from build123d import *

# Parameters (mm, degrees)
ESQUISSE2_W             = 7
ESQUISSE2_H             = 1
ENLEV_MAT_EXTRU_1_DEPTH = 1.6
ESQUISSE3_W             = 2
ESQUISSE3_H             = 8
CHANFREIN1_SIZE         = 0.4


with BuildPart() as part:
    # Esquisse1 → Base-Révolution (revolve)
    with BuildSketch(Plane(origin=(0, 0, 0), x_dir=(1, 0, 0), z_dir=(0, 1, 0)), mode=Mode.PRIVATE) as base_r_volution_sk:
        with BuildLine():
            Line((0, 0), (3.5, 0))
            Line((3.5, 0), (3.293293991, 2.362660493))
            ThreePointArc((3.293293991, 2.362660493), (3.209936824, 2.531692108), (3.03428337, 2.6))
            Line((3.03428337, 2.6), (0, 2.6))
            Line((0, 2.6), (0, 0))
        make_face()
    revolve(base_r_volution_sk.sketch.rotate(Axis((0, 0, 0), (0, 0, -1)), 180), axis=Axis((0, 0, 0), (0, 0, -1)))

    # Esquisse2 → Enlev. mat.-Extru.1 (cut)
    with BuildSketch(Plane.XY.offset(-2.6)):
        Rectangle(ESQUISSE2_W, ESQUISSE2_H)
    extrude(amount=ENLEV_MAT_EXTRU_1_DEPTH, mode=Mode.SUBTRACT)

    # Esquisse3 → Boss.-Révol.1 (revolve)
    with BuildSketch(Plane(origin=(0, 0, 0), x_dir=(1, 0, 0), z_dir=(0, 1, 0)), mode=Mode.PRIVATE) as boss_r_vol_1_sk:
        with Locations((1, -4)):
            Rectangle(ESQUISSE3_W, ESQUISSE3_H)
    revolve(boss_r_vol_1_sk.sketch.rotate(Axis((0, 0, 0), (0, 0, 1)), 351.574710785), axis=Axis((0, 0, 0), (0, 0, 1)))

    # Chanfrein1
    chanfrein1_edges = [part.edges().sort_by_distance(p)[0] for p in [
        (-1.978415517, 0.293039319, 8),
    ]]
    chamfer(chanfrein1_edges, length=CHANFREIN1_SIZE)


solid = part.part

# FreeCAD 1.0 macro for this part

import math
import FreeCAD as App
import Part
import Sketcher

V = App.Vector
Q = App.Units.Quantity


def edges_at(feature, points):
    """Names of the edges that pass closest to the given points."""
    edges = feature.Shape.Edges
    near = lambda p: min(range(len(edges)), key=lambda i: edges[i].distToShape(Part.Vertex(*p))[0])
    return sorted({f"Edge{near(p) + 1}" for p in points})


def add_polygon(sketch, points):
    """Adds a closed chain of lines whose ends are joined by coincident constraints."""
    first, n = sketch.GeometryCount, len(points)
    for a, b in zip(points, points[1:] + points[:1]):
        sketch.addGeometry(Part.LineSegment(App.Vector(*a, 0), App.Vector(*b, 0)), False)
    for i in range(n):
        sketch.addConstraint(Sketcher.Constraint("Coincident", first + i, 2, first + (i + 1) % n, 1))

doc = App.newDocument("Part")
body = doc.addObject("PartDesign::Body", "Body")

# Sketch on XZ plane
sketch1 = body.newObject("Sketcher::SketchObject", "Sketch")
sketch1.AttachmentSupport = (doc.getObject("XZ_Plane"), [""])
sketch1.MapMode = "FlatFace"
sketch1.addGeometry([
    Part.LineSegment(V(0, 0, 0), V(3.5, 0, 0)),  # 0
    Part.LineSegment(V(3.5, 0, 0), V(3.29, -2.36, 0)),  # 1
    Part.ArcOfCircle(Part.Circle(V(3.03, -2.34, 0), V(0, 0, 1), 0.26), math.radians(-90), math.radians(-5)),  # 2
    Part.LineSegment(V(3.03, -2.6, 0), V(0, -2.6, 0)),  # 3
    Part.LineSegment(V(0, -2.6, 0), V(0, 0, 0)),  # 4
], False)
sketch1.addConstraint([
    Sketcher.Constraint("Coincident", 0, 2, 1, 1),
    Sketcher.Constraint("Tangent", 1, 2, 2, 2),
    Sketcher.Constraint("Tangent", 2, 1, 3, 1),
    Sketcher.Constraint("Coincident", 3, 2, 4, 1),
    Sketcher.Constraint("Coincident", 4, 2, 0, 1),
    Sketcher.Constraint("Horizontal", 0),
    Sketcher.Constraint("Horizontal", 3),
    Sketcher.Constraint("Vertical", 4),
    Sketcher.Constraint("Coincident", 4, 2, -1, 1),
    Sketcher.Constraint("Angle", 1, Q("-95 deg")),
    Sketcher.Constraint("Radius", 2, Q("0.26 mm")),
    Sketcher.Constraint("DistanceX", 0, 1, 0, 2, Q("3.5 mm")),
    Sketcher.Constraint("DistanceY", 4, 1, 4, 2, Q("2.6 mm")),
])
revolution = body.newObject("PartDesign::Revolution", "Revolution")
revolution.Profile = sketch1
revolution.ReferenceAxis = (sketch1, ["V_Axis"])
revolution.Angle = 360

# Sketch on XY plane
sketch2 = body.newObject("Sketcher::SketchObject", "Sketch001")
sketch2.AttachmentSupport = (doc.getObject("XY_Plane"), [""])
sketch2.MapMode = "FlatFace"
sketch2.AttachmentOffset = App.Placement(V(0, 0, -2.6), App.Rotation())
add_polygon(sketch2, [(-3.5, 0.5), (-3.5, -0.5), (3.5, -0.5), (3.5, 0.5)])  # lines 0-3
sketch2.addConstraint([
    Sketcher.Constraint("Vertical", 0),
    Sketcher.Constraint("Horizontal", 1),
    Sketcher.Constraint("Vertical", 2),
    Sketcher.Constraint("Horizontal", 3),
    Sketcher.Constraint("Symmetric", 0, 2, 2, 2, -1, 1),
    Sketcher.Constraint("DistanceX", 1, 1, 1, 2, Q("7 mm")),
    Sketcher.Constraint("DistanceY", 0, 2, 0, 1, Q("1 mm")),
])
pocket1 = body.newObject("PartDesign::Pocket", "Pocket")
pocket1.Profile = sketch2
pocket1.Length = 1.6
pocket1.Reversed = True

# Sketch on XZ plane
sketch3 = body.newObject("Sketcher::SketchObject", "Sketch002")
sketch3.AttachmentSupport = (doc.getObject("XZ_Plane"), [""])
sketch3.MapMode = "FlatFace"
add_polygon(sketch3, [(0, 0), (0, 8), (2, 8), (2, 0)])  # lines 0-3
sketch3.addConstraint([
    Sketcher.Constraint("Vertical", 0),
    Sketcher.Constraint("Horizontal", 1),
    Sketcher.Constraint("Vertical", 2),
    Sketcher.Constraint("Horizontal", 3),
    Sketcher.Constraint("Coincident", 3, 2, -1, 1),
    Sketcher.Constraint("DistanceX", 1, 1, 1, 2, Q("2 mm")),
    Sketcher.Constraint("DistanceY", 0, 1, 0, 2, Q("8 mm")),
])
revolution2 = body.newObject("PartDesign::Revolution", "Revolution001")
revolution2.Profile = sketch3
revolution2.ReferenceAxis = (sketch3, ["V_Axis"])
revolution2.Angle = 360
doc.recompute()

chamfer = body.newObject("PartDesign::Chamfer", "Chamfer")
chamfer.Base = (revolution2, edges_at(revolution2, [(-1.978, 0.293, 8)]))
chamfer.Size = 0.4

doc.recompute()
